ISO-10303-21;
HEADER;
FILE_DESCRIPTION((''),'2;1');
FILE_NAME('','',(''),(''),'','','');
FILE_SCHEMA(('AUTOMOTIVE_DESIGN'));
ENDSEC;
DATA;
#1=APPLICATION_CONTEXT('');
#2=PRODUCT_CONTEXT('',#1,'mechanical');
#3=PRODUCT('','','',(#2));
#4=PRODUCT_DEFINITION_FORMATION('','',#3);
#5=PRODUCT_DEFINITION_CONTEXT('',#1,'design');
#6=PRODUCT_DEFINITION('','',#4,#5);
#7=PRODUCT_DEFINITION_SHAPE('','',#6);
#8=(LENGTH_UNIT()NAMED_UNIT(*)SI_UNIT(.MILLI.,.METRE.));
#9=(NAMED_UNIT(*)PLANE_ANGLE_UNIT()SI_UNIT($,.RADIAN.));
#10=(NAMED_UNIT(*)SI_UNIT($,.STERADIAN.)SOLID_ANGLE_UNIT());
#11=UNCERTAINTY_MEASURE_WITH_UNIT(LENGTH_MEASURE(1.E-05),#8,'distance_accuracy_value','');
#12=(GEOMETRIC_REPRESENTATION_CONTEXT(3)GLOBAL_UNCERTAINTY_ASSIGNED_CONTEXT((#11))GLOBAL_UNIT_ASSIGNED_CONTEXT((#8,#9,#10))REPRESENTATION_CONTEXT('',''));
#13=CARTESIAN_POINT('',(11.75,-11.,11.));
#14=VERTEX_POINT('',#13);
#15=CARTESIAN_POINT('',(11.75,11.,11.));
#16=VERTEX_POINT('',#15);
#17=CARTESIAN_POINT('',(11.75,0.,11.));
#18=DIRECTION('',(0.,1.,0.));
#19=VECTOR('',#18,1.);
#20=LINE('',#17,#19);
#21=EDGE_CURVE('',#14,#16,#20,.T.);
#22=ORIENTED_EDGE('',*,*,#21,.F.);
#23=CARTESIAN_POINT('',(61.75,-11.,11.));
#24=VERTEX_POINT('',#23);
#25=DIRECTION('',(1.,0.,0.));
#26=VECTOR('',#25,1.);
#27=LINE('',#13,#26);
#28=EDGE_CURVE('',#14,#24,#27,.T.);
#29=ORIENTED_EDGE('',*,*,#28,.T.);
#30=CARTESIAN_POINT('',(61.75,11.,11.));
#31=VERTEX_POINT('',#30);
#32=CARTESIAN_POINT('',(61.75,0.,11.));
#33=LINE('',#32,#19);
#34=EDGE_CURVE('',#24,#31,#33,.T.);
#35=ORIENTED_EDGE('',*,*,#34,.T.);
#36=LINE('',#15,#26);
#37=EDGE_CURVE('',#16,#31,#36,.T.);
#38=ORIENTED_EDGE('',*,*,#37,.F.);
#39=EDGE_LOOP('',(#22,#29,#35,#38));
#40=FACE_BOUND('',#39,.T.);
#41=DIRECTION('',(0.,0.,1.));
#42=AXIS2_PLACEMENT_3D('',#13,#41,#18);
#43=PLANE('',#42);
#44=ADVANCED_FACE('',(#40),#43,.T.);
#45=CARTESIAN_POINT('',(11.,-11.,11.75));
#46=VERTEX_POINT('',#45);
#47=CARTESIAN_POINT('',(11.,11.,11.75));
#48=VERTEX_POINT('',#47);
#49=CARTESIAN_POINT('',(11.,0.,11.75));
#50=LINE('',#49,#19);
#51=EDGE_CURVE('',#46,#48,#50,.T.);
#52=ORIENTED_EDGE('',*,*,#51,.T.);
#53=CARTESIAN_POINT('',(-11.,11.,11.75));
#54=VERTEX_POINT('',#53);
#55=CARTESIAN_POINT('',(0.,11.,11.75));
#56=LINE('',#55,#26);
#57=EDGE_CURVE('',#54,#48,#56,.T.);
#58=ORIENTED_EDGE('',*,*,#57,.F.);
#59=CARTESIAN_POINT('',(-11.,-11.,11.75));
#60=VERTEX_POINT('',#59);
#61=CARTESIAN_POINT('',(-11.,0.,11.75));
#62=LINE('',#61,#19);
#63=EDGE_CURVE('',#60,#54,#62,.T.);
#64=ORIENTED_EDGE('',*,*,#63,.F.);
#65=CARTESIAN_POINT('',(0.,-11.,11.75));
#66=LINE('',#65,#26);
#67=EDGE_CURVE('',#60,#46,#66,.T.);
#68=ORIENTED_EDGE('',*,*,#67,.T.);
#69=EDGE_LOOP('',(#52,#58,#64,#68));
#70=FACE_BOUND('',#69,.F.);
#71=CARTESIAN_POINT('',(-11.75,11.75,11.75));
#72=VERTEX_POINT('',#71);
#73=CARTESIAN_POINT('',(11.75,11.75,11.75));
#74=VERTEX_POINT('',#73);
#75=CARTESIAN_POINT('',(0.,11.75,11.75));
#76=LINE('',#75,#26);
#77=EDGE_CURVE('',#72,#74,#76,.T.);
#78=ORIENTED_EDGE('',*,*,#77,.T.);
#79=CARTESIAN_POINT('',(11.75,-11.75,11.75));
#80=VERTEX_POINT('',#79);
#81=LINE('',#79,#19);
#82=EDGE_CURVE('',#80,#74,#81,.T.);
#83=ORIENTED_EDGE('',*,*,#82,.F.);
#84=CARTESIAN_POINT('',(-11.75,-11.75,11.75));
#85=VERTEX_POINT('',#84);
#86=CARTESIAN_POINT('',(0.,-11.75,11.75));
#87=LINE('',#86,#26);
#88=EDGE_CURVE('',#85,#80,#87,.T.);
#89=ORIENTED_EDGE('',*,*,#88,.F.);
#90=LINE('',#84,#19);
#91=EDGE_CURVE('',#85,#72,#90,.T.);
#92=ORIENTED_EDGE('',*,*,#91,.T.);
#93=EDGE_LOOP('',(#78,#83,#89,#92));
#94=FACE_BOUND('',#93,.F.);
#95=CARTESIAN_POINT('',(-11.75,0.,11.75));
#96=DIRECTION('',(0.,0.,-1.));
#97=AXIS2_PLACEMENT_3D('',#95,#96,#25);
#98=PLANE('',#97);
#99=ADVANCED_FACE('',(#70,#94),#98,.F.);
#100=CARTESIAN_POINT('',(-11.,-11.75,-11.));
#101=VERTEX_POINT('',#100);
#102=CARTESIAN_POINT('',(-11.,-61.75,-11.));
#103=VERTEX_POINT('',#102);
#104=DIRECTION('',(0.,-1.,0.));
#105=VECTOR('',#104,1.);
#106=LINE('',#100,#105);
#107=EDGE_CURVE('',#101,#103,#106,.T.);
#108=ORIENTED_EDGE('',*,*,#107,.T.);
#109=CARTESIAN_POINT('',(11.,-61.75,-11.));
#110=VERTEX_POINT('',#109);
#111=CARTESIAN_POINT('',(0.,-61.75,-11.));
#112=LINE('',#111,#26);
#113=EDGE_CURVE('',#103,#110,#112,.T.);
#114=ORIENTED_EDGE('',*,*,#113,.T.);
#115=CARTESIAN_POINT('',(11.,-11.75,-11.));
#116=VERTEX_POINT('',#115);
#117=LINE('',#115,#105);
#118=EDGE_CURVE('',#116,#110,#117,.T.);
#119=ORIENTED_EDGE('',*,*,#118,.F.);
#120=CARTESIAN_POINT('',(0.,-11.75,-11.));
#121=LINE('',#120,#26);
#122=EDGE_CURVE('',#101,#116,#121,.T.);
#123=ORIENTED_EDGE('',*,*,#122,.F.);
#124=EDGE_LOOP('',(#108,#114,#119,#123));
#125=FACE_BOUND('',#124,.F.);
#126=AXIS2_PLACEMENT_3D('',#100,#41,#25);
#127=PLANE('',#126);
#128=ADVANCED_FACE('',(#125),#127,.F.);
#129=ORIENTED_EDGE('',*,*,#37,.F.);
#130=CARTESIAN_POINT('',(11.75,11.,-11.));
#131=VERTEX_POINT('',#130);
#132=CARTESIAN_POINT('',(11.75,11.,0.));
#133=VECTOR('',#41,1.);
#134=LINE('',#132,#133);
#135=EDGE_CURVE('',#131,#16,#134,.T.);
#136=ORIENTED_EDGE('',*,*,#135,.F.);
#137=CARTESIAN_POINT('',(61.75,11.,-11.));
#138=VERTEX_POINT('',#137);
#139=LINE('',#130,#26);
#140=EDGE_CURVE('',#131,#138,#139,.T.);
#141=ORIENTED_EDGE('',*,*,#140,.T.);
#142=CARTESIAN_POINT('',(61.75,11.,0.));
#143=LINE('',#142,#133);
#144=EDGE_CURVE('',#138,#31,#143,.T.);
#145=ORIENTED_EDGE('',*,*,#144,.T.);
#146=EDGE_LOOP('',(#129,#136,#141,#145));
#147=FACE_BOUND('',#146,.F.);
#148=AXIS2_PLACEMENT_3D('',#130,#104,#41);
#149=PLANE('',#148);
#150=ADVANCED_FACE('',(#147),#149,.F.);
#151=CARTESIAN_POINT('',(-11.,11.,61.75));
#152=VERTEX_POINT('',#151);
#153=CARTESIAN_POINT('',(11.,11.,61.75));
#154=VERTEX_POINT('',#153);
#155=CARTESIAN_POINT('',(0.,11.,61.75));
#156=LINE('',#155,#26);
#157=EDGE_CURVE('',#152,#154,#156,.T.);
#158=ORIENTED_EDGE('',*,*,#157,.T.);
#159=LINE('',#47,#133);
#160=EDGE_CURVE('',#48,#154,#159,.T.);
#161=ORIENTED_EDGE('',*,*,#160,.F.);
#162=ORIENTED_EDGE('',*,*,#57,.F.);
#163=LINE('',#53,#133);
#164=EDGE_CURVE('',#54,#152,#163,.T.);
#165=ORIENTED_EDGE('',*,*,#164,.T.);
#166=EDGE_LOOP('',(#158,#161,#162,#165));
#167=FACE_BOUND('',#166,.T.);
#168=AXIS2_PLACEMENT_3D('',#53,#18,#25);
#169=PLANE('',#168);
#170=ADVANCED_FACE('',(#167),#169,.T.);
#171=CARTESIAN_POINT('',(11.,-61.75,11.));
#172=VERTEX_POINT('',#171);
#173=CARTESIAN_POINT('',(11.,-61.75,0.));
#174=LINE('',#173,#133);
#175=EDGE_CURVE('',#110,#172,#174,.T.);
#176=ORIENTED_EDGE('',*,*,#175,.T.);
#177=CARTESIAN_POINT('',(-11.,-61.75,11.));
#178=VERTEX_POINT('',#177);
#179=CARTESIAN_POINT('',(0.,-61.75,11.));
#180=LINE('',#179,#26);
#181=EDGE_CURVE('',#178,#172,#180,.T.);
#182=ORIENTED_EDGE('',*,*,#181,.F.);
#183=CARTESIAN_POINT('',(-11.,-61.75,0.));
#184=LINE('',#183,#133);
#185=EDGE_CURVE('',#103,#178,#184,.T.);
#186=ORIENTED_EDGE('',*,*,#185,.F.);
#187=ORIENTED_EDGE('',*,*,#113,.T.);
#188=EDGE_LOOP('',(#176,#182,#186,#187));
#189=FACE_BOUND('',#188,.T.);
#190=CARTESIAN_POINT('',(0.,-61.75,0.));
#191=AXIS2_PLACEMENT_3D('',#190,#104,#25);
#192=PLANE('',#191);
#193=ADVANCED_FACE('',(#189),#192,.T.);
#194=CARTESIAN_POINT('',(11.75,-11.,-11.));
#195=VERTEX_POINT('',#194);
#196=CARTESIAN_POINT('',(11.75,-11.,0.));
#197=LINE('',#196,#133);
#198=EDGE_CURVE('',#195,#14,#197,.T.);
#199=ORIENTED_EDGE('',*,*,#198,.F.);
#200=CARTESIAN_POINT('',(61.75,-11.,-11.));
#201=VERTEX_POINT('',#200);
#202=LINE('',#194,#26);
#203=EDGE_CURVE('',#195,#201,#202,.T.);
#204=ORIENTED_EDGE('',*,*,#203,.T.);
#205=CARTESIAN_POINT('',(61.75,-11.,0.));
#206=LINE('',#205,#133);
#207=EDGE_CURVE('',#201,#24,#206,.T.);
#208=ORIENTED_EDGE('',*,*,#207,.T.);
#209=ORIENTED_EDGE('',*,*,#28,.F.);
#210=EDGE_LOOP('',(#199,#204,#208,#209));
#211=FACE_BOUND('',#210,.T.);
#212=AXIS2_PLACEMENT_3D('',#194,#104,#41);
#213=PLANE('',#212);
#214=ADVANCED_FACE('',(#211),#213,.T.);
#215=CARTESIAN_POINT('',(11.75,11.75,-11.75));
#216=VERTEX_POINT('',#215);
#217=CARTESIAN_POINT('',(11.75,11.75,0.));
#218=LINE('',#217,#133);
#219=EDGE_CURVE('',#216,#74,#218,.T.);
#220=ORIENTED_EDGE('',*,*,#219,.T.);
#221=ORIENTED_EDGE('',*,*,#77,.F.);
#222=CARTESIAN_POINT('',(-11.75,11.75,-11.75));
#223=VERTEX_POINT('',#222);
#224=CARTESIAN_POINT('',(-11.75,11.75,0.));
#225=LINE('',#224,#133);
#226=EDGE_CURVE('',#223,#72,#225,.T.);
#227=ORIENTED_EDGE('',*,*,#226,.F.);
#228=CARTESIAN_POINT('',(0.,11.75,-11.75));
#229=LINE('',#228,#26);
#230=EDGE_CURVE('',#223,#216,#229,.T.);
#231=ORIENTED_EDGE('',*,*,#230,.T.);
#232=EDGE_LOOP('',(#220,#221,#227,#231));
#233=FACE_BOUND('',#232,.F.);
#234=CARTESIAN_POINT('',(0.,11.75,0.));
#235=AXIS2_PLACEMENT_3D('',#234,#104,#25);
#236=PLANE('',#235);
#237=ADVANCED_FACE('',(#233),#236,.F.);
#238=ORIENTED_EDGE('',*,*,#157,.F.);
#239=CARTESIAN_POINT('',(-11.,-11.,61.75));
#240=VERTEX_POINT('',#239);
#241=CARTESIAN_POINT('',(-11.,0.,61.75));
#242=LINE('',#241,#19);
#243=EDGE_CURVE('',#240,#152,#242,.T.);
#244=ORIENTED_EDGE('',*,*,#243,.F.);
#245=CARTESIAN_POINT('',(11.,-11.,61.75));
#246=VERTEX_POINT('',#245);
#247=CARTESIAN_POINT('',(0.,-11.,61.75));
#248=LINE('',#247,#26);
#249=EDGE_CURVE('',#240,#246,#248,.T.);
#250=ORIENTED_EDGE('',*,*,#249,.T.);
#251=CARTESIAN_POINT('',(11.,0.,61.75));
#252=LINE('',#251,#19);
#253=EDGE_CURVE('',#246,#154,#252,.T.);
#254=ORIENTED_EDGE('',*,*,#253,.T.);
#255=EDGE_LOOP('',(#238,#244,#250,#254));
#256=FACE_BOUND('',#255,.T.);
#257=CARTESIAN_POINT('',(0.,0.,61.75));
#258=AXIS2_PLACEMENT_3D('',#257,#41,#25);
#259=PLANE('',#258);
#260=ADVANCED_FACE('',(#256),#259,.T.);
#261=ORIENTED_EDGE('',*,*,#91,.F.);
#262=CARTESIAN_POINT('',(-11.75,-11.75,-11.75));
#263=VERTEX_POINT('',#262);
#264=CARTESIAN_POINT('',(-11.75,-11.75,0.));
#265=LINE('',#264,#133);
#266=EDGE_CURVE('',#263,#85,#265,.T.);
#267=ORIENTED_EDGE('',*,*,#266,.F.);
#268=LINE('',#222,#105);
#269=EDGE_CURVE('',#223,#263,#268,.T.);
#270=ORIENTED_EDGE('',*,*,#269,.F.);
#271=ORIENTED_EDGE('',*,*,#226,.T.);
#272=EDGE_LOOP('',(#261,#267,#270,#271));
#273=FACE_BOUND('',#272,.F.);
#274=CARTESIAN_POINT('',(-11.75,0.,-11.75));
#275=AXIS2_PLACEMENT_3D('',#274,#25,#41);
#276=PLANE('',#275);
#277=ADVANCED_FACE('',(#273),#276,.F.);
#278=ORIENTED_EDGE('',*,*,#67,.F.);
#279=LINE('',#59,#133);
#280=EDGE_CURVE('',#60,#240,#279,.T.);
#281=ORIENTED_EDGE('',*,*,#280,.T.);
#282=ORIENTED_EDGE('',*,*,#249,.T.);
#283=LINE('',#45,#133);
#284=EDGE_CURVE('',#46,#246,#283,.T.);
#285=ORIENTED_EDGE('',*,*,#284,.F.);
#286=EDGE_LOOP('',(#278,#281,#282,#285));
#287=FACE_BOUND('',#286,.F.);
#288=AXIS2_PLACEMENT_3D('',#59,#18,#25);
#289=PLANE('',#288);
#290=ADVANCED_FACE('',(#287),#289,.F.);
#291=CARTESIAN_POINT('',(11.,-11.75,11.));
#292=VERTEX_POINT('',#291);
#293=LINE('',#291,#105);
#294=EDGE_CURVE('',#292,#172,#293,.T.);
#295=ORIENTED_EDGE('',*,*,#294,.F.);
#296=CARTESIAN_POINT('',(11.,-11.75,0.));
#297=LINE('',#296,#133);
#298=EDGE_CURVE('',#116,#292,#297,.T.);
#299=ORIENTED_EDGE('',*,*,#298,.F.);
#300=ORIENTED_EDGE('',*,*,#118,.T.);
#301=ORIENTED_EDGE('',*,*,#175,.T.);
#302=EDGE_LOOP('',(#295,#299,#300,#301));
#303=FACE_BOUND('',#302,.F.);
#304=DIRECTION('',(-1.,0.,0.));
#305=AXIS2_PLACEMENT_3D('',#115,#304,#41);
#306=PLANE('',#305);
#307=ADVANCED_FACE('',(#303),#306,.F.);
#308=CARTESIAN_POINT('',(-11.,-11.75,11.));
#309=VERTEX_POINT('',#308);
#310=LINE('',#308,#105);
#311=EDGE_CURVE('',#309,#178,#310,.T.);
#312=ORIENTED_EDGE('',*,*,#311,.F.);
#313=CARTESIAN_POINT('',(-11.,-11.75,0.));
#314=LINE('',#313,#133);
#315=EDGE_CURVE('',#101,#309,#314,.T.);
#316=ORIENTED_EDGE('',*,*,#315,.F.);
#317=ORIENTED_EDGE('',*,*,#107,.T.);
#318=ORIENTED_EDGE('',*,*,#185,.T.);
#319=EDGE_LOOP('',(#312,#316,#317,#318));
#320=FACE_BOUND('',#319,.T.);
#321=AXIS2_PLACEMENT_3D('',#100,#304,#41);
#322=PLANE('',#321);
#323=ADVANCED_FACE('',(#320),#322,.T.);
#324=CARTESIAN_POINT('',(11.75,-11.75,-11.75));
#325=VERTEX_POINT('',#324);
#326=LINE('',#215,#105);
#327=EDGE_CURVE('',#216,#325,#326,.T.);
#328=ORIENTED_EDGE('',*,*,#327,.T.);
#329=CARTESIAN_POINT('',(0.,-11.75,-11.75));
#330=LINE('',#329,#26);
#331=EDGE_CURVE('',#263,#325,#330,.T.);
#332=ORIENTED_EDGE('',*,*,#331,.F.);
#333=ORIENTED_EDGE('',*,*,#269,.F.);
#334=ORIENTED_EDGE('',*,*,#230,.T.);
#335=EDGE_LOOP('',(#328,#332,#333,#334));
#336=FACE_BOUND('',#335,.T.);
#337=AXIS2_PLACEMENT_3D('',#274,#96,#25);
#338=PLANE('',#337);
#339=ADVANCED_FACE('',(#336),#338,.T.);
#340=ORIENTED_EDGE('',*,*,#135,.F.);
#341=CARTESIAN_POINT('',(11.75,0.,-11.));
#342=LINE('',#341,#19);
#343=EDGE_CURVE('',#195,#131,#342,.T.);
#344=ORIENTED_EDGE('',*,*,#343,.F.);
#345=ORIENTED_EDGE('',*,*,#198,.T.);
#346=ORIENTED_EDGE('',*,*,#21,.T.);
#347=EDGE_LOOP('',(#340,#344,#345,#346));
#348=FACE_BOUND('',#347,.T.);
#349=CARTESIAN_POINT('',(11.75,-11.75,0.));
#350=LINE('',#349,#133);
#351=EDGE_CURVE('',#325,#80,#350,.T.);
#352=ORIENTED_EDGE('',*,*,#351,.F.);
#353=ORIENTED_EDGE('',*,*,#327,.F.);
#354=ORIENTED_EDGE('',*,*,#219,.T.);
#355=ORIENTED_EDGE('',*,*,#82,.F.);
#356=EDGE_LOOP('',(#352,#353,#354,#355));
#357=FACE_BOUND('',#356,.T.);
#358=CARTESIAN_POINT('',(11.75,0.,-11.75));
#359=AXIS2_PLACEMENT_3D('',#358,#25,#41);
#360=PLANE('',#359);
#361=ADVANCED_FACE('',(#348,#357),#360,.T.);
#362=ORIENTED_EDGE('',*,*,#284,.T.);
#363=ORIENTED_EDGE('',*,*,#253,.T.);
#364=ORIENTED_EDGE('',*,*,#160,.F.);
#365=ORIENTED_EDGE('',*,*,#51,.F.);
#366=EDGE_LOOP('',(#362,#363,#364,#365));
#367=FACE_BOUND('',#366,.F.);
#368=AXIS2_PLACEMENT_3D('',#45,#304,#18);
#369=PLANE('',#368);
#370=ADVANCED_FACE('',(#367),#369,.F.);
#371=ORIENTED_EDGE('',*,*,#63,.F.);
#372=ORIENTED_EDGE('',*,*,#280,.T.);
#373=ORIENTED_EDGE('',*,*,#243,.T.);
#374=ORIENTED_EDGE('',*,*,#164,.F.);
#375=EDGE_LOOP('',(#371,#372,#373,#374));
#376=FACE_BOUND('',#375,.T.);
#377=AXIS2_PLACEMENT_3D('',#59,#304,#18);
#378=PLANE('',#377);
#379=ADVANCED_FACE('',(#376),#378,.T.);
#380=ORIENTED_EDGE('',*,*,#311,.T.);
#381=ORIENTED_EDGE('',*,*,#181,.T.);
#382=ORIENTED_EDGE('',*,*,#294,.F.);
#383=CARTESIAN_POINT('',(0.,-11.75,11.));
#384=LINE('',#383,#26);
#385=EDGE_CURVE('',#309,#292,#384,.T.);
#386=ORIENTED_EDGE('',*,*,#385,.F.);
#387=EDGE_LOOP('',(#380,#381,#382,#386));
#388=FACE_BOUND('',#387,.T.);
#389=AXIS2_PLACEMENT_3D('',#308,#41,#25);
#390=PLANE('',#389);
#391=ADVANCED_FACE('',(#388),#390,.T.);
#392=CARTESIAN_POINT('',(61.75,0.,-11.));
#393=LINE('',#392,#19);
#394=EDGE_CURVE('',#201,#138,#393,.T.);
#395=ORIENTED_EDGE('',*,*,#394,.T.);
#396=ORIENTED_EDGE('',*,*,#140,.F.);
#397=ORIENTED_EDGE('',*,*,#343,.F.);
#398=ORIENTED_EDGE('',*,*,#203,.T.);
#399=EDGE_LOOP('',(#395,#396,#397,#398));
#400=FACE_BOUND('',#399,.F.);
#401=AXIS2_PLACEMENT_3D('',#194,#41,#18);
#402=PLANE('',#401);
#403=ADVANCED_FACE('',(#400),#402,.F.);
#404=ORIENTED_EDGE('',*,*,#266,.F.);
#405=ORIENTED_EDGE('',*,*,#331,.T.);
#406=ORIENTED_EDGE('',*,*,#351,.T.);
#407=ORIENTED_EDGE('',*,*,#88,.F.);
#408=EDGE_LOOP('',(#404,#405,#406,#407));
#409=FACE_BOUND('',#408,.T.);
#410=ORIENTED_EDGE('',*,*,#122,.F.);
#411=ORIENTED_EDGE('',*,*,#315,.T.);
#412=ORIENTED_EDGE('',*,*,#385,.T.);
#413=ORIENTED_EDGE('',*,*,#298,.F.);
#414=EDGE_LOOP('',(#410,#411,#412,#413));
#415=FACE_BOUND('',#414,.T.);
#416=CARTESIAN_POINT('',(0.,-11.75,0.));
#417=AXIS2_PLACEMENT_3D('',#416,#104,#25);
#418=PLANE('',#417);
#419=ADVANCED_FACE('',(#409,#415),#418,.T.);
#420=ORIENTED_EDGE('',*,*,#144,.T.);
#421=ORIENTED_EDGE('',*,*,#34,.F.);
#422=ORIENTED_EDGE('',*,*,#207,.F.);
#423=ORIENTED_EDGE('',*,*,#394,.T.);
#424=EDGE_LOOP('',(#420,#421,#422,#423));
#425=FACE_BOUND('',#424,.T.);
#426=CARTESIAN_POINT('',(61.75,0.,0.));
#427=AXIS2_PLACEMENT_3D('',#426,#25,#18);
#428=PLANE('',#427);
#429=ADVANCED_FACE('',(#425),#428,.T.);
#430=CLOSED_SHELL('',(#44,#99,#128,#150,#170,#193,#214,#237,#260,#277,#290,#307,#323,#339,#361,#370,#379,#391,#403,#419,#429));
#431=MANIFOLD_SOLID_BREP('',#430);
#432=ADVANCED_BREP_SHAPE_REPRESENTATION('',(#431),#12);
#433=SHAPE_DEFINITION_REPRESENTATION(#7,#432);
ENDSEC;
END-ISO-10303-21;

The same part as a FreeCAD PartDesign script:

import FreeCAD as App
import Part
import Sketcher
Q = App.Units.Quantity

doc = App.newDocument("Part")
body = doc.addObject("PartDesign::Body", "Body")

sketch1 = body.newObject("Sketcher::SketchObject", "Sketch")
sketch1.AttachmentSupport = (doc.getObject("XZ_Plane"), [""])
sketch1.MapMode = "FlatFace"
sketch1.addGeometry(Part.LineSegment(App.Vector(-11.75, 11.75, 0), App.Vector(-11.75, -11.75, 0)), False)
sketch1.addGeometry(Part.LineSegment(App.Vector(-11.75, -11.75, 0), App.Vector(11.75, -11.75, 0)), False)
sketch1.addGeometry(Part.LineSegment(App.Vector(11.75, -11.75, 0), App.Vector(11.75, 11.75, 0)), False)
sketch1.addGeometry(Part.LineSegment(App.Vector(11.75, 11.75, 0), App.Vector(-11.75, 11.75, 0)), False)
sketch1.addConstraint(Sketcher.Constraint("Coincident", 0, 2, 1, 1))
sketch1.addConstraint(Sketcher.Constraint("Coincident", 1, 2, 2, 1))
sketch1.addConstraint(Sketcher.Constraint("Coincident", 2, 2, 3, 1))
sketch1.addConstraint(Sketcher.Constraint("Coincident", 3, 2, 0, 1))
sketch1.addConstraint(Sketcher.Constraint("Vertical", 0))
sketch1.addConstraint(Sketcher.Constraint("Horizontal", 1))
sketch1.addConstraint(Sketcher.Constraint("Vertical", 2))
sketch1.addConstraint(Sketcher.Constraint("Horizontal", 3))
sketch1.addConstraint(Sketcher.Constraint("Symmetric", 0, 2, 2, 2, -1, 1))
sketch1.addConstraint(Sketcher.Constraint("Equal", 3, 0))
sketch1.addConstraint(Sketcher.Constraint("DistanceX", 1, 1, 1, 2, Q("23.5 mm")))
pad1 = body.newObject("PartDesign::Pad", "Pad")
pad1.Profile = sketch1
pad1.Length = 23.5
pad1.Midplane = True

sketch2 = body.newObject("Sketcher::SketchObject", "Sketch001")
sketch2.AttachmentSupport = (doc.getObject("XZ_Plane"), [""])
sketch2.MapMode = "FlatFace"
sketch2.AttachmentOffset = App.Placement(App.Vector(0, 0, 11.75), App.Rotation())
sketch2.addGeometry(Part.LineSegment(App.Vector(-11, 11, 0), App.Vector(-11, -11, 0)), False)
sketch2.addGeometry(Part.LineSegment(App.Vector(-11, -11, 0), App.Vector(11, -11, 0)), False)
sketch2.addGeometry(Part.LineSegment(App.Vector(11, -11, 0), App.Vector(11, 11, 0)), False)
sketch2.addGeometry(Part.LineSegment(App.Vector(11, 11, 0), App.Vector(-11, 11, 0)), False)
sketch2.addConstraint(Sketcher.Constraint("Coincident", 0, 2, 1, 1))
sketch2.addConstraint(Sketcher.Constraint("Coincident", 1, 2, 2, 1))
sketch2.addConstraint(Sketcher.Constraint("Coincident", 2, 2, 3, 1))
sketch2.addConstraint(Sketcher.Constraint("Coincident", 3, 2, 0, 1))
sketch2.addConstraint(Sketcher.Constraint("Vertical", 0))
sketch2.addConstraint(Sketcher.Constraint("Horizontal", 1))
sketch2.addConstraint(Sketcher.Constraint("Vertical", 2))
sketch2.addConstraint(Sketcher.Constraint("Horizontal", 3))
sketch2.addConstraint(Sketcher.Constraint("Symmetric", 0, 2, 2, 2, -1, 1))
sketch2.addConstraint(Sketcher.Constraint("Equal", 3, 0))
sketch2.addConstraint(Sketcher.Constraint("DistanceX", 1, 1, 1, 2, Q("22 mm")))
pad2 = body.newObject("PartDesign::Pad", "Pad001")
pad2.Profile = sketch2
pad2.Length = 50

sketch3 = body.newObject("Sketcher::SketchObject", "Sketch002")
sketch3.AttachmentSupport = (doc.getObject("XY_Plane"), [""])
sketch3.MapMode = "FlatFace"
sketch3.AttachmentOffset = App.Placement(App.Vector(0, 0, 11.75), App.Rotation())
sketch3.addGeometry(Part.LineSegment(App.Vector(-11, 11, 0), App.Vector(-11, -11, 0)), False)
sketch3.addGeometry(Part.LineSegment(App.Vector(-11, -11, 0), App.Vector(11, -11, 0)), False)
sketch3.addGeometry(Part.LineSegment(App.Vector(11, -11, 0), App.Vector(11, 11, 0)), False)
sketch3.addGeometry(Part.LineSegment(App.Vector(11, 11, 0), App.Vector(-11, 11, 0)), False)
sketch3.addConstraint(Sketcher.Constraint("Coincident", 0, 2, 1, 1))
sketch3.addConstraint(Sketcher.Constraint("Coincident", 1, 2, 2, 1))
sketch3.addConstraint(Sketcher.Constraint("Coincident", 2, 2, 3, 1))
sketch3.addConstraint(Sketcher.Constraint("Coincident", 3, 2, 0, 1))
sketch3.addConstraint(Sketcher.Constraint("Vertical", 0))
sketch3.addConstraint(Sketcher.Constraint("Horizontal", 1))
sketch3.addConstraint(Sketcher.Constraint("Vertical", 2))
sketch3.addConstraint(Sketcher.Constraint("Horizontal", 3))
sketch3.addConstraint(Sketcher.Constraint("Symmetric", 0, 2, 2, 2, -1, 1))
sketch3.addConstraint(Sketcher.Constraint("Equal", 3, 0))
sketch3.addConstraint(Sketcher.Constraint("DistanceX", 1, 1, 1, 2, Q("22 mm")))
pad3 = body.newObject("PartDesign::Pad", "Pad002")
pad3.Profile = sketch3
pad3.Length = 50

sketch4 = body.newObject("Sketcher::SketchObject", "Sketch003")
sketch4.AttachmentSupport = (doc.getObject("YZ_Plane"), [""])
sketch4.MapMode = "FlatFace"
sketch4.AttachmentOffset = App.Placement(App.Vector(0, 0, 11.75), App.Rotation())
sketch4.addGeometry(Part.LineSegment(App.Vector(-11, 11, 0), App.Vector(-11, -11, 0)), False)
sketch4.addGeometry(Part.LineSegment(App.Vector(-11, -11, 0), App.Vector(11, -11, 0)), False)
sketch4.addGeometry(Part.LineSegment(App.Vector(11, -11, 0), App.Vector(11, 11, 0)), False)
sketch4.addGeometry(Part.LineSegment(App.Vector(11, 11, 0), App.Vector(-11, 11, 0)), False)
sketch4.addConstraint(Sketcher.Constraint("Coincident", 0, 2, 1, 1))
sketch4.addConstraint(Sketcher.Constraint("Coincident", 1, 2, 2, 1))
sketch4.addConstraint(Sketcher.Constraint("Coincident", 2, 2, 3, 1))
sketch4.addConstraint(Sketcher.Constraint("Coincident", 3, 2, 0, 1))
sketch4.addConstraint(Sketcher.Constraint("Vertical", 0))
sketch4.addConstraint(Sketcher.Constraint("Horizontal", 1))
sketch4.addConstraint(Sketcher.Constraint("Vertical", 2))
sketch4.addConstraint(Sketcher.Constraint("Horizontal", 3))
sketch4.addConstraint(Sketcher.Constraint("Symmetric", 0, 2, 2, 2, -1, 1))
sketch4.addConstraint(Sketcher.Constraint("Equal", 3, 0))
sketch4.addConstraint(Sketcher.Constraint("DistanceX", 1, 1, 1, 2, Q("22 mm")))
pad4 = body.newObject("PartDesign::Pad", "Pad003")
pad4.Profile = sketch4
pad4.Length = 50

doc.recompute()
